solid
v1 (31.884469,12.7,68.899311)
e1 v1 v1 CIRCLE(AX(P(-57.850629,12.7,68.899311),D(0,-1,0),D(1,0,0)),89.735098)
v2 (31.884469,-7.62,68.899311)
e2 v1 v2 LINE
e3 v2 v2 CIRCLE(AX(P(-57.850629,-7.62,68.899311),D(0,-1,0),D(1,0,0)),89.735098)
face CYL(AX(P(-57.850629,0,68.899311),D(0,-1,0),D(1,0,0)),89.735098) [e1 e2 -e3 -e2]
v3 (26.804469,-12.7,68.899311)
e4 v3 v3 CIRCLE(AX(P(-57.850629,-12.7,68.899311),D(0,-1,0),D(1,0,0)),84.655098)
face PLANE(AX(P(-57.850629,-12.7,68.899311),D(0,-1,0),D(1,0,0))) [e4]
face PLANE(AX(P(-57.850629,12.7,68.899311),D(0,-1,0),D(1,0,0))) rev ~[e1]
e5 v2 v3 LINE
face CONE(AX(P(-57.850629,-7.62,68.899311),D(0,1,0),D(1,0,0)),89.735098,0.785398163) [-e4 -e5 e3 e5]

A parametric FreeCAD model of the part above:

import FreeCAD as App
import Part
import Sketcher

V = App.Vector
Q = App.Units.Quantity


def edges_at(feature, points):
    """Names of the edges that pass closest to the given points."""
    edges = feature.Shape.Edges
    near = lambda p: min(range(len(edges)), key=lambda i: edges[i].distToShape(Part.Vertex(*p))[0])
    return sorted({f"Edge{near(p) + 1}" for p in points})

doc = App.newDocument("Part")
body = doc.addObject("PartDesign::Body", "Body")

# Sketch on XZ plane
sketch1 = doc.addObject("Sketcher::SketchObject", "Sketch")
body.addObject(sketch1)
sketch1.AttachmentSupport = (doc.XZ_Plane, [""])
sketch1.MapMode = "FlatFace"
sketch1.addGeometry(Part.Circle(V(-57.850629, 68.899311, 0), V(0, 0, 1), 89.735098), False)
sketch1.addConstraint([
    Sketcher.Constraint("Diameter", 0, 179.470196),
    Sketcher.Constraint("DistanceX", 0, 3, -1, 1, 57.850629),
    Sketcher.Constraint("DistanceY", -1, 1, 0, 3, 68.899311),
])
pad1 = doc.addObject("PartDesign::Pad", "Pad")
body.addObject(pad1)
pad1.Profile = sketch1
pad1.Length = Q("1 in")
pad1.Midplane = True
doc.recompute()

chamfer = doc.addObject("PartDesign::Chamfer", "Chamfer")
body.addObject(chamfer)
chamfer.Base = (pad1, edges_at(pad1, [(-147.586, -12.7, 68.899)]))
chamfer.Size = Q("0.2 in")

doc.recompute()
